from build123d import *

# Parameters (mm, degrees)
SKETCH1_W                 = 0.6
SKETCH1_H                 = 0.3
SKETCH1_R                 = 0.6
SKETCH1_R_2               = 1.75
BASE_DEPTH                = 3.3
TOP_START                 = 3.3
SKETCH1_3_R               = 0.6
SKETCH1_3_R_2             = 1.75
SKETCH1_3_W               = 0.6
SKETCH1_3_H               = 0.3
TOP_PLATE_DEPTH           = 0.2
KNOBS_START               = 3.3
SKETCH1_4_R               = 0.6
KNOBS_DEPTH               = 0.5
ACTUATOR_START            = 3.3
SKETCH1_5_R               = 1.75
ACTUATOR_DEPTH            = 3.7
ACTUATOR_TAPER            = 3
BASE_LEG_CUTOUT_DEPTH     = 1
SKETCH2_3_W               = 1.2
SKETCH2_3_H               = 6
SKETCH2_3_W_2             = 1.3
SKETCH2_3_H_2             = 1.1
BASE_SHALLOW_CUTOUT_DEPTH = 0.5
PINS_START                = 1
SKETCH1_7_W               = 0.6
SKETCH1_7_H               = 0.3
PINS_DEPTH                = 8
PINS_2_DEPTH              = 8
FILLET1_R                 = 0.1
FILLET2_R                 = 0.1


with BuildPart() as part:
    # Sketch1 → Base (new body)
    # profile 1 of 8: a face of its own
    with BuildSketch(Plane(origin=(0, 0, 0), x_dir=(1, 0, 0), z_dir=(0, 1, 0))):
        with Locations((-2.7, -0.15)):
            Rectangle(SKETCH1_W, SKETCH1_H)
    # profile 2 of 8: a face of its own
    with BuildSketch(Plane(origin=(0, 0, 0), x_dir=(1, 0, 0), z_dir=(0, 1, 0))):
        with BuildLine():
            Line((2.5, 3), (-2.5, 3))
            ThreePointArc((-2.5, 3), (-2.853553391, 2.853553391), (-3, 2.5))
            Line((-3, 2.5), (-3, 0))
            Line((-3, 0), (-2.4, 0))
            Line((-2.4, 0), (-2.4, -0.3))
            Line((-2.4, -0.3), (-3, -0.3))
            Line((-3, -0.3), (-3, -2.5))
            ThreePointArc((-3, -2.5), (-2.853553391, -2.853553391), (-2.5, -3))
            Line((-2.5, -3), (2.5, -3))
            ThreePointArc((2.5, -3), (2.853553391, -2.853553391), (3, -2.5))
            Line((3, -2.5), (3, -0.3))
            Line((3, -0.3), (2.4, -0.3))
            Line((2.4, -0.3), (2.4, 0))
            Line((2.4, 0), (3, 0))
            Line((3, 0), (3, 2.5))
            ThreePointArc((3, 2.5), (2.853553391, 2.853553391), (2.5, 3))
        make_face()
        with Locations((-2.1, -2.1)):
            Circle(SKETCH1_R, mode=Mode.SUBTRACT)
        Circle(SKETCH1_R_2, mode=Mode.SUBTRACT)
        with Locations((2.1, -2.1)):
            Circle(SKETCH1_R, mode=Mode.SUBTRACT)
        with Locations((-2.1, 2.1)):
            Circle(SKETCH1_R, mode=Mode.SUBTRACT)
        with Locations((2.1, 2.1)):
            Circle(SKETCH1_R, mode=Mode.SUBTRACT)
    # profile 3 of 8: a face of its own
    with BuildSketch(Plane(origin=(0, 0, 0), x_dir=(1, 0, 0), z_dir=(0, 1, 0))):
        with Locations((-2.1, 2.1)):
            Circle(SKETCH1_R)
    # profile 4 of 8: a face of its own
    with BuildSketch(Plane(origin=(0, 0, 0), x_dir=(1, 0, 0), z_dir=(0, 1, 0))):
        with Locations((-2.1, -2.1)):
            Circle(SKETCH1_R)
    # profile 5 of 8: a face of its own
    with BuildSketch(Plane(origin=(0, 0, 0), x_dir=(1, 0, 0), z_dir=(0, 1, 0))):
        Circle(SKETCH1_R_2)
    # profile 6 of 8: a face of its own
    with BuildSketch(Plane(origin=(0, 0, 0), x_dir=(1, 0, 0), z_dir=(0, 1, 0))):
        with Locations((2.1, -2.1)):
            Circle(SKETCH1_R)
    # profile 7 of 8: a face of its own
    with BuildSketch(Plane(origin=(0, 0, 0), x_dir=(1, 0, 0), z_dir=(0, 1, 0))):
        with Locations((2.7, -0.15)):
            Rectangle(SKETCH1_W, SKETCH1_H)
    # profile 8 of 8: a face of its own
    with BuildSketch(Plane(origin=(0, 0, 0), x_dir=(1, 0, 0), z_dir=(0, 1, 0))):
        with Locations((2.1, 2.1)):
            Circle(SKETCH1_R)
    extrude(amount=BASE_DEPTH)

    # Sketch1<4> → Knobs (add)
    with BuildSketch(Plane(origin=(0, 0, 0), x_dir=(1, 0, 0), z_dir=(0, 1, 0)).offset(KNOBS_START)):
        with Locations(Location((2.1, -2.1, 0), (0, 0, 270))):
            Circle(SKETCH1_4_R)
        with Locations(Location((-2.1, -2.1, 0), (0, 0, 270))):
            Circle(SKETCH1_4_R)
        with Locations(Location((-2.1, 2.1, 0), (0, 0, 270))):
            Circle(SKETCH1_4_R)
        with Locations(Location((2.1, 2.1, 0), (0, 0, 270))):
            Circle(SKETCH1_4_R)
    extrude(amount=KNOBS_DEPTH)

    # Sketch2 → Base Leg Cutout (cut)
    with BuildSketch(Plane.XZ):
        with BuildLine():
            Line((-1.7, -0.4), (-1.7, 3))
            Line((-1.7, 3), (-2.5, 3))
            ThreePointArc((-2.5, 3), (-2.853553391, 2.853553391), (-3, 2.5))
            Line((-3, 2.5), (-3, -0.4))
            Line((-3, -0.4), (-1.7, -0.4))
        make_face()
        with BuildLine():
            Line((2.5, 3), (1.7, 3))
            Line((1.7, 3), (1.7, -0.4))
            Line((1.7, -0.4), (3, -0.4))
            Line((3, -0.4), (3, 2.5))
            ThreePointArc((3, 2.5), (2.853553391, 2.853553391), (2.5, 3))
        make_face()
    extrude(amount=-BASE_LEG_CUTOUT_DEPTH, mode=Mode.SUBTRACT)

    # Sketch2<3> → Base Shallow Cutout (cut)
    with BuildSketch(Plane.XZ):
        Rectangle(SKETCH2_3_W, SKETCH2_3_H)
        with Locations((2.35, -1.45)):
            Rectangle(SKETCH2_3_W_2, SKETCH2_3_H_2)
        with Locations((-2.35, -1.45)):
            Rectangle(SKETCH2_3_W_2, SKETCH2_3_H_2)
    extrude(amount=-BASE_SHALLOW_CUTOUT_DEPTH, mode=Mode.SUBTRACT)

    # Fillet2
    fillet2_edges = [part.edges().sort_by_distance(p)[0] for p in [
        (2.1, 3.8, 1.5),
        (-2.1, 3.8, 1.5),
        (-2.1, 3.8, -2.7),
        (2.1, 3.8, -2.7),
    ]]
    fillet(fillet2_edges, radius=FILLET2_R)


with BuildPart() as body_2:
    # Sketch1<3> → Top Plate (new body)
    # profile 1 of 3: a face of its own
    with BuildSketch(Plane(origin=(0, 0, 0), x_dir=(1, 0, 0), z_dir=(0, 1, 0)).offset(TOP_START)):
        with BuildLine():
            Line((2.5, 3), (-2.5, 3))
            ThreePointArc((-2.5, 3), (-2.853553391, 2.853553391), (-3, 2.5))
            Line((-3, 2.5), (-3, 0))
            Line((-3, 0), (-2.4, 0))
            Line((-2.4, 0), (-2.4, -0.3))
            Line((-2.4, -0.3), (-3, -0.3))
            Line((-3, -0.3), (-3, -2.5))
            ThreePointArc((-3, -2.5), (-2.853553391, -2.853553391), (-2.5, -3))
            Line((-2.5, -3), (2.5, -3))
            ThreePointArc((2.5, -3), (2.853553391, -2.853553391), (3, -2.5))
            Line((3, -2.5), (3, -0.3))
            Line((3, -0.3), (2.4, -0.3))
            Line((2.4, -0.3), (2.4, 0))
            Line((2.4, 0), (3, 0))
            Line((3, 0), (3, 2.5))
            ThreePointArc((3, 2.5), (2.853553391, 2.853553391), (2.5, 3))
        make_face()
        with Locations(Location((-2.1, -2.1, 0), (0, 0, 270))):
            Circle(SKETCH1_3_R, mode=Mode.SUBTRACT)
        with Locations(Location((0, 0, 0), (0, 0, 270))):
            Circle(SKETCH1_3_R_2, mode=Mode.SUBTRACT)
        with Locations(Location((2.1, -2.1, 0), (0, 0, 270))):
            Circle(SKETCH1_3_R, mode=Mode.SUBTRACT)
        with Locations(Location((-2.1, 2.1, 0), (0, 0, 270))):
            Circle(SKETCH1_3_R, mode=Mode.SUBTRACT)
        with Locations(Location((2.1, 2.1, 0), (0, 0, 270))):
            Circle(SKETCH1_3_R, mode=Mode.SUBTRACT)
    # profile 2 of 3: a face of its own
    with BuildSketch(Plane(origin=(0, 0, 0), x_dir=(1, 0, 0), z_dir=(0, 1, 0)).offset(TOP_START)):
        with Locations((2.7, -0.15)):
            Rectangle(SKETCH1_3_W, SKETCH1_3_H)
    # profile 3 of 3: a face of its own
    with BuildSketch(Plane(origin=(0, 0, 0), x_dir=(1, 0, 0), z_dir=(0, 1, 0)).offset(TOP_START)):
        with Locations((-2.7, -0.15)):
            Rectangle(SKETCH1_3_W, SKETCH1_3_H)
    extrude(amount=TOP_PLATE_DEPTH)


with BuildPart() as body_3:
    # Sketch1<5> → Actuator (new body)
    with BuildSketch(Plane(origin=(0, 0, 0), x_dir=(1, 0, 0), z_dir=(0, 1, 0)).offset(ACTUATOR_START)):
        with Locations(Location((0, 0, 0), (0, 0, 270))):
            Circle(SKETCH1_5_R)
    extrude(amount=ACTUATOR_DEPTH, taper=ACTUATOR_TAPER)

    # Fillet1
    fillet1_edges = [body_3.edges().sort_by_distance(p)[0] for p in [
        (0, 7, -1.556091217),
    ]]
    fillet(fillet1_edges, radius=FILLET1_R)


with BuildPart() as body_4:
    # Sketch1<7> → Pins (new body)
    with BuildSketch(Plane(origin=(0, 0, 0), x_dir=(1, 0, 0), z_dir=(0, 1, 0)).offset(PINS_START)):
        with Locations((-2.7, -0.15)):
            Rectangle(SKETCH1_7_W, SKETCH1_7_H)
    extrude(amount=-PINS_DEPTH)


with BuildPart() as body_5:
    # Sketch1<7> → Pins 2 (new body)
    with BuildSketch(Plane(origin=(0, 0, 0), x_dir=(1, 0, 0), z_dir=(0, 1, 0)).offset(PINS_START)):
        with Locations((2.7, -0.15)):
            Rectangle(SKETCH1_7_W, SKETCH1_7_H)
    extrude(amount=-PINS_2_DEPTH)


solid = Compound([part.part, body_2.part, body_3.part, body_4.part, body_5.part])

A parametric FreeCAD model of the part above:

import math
import FreeCAD as App
import Part
import Sketcher

V = App.Vector


def edges_at(feature, points):
    """Names of the edges that pass closest to the given points."""
    edges = feature.Shape.Edges
    near = lambda p: min(range(len(edges)), key=lambda i: edges[i].distToShape(Part.Vertex(*p))[0])
    return sorted({f"Edge{near(p) + 1}" for p in points})


def add_polygon(sketch, points):
    """Adds a closed chain of lines whose ends are joined by coincident constraints."""
    first, n = sketch.GeometryCount, len(points)
    for a, b in zip(points, points[1:] + points[:1]):
        sketch.addGeometry(Part.LineSegment(App.Vector(*a, 0), App.Vector(*b, 0)), False)
    for i in range(n):
        sketch.addConstraint(Sketcher.Constraint("Coincident", first + i, 2, first + (i + 1) % n, 1))

doc = App.newDocument("Part")
body = doc.addObject("PartDesign::Body", "Body")

sketch1 = body.newObject("Sketcher::SketchObject", "Sketch")
sketch1.AttachmentSupport = (doc.getObject("XZ_Plane"), [""])
sketch1.MapMode = "FlatFace"
sketch1.addGeometry([
    Part.ArcOfCircle(Part.Circle(V(-2.5, 2.5, 0), V(0, 0, 1), 0.5), math.radians(90), math.radians(180)),
    Part.LineSegment(V(-2.5, 3, 0), V(2.5, 3, 0)),
    Part.ArcOfCircle(Part.Circle(V(2.5, 2.5, 0), V(0, 0, 1), 0.5), math.radians(0), math.radians(90)),
    Part.LineSegment(V(3, 2.5, 0), V(3, -2.5, 0)),
    Part.ArcOfCircle(Part.Circle(V(2.5, -2.5, 0), V(0, 0, 1), 0.5), math.radians(-90), math.radians(0)),
    Part.LineSegment(V(2.5, -3, 0), V(-2.5, -3, 0)),
    Part.ArcOfCircle(Part.Circle(V(-2.5, -2.5, 0), V(0, 0, 1), 0.5), math.radians(180), math.radians(270)),
    Part.LineSegment(V(-3, -2.5, 0), V(-3, 2.5, 0)),
], False)
sketch1.addConstraint([
    Sketcher.Constraint("Tangent", 0, 1, 1, 1),
    Sketcher.Constraint("Tangent", 1, 2, 2, 2),
    Sketcher.Constraint("Tangent", 2, 1, 3, 1),
    Sketcher.Constraint("Tangent", 3, 2, 4, 2),
    Sketcher.Constraint("Tangent", 4, 1, 5, 1),
    Sketcher.Constraint("Tangent", 5, 2, 6, 2),
    Sketcher.Constraint("Tangent", 6, 1, 7, 1),
    Sketcher.Constraint("Tangent", 7, 2, 0, 2),
    Sketcher.Constraint("Horizontal", 1),
    Sketcher.Constraint("Vertical", 3),
    Sketcher.Constraint("Horizontal", 5),
    Sketcher.Constraint("Vertical", 7),
    Sketcher.Constraint("Equal", 0, 2),
    Sketcher.Constraint("Equal", 2, 4),
    Sketcher.Constraint("Equal", 4, 6),
    Sketcher.Constraint("Symmetric", 0, 3, 4, 3, -1, 1),
    Sketcher.Constraint("Equal", 5, 3),
    Sketcher.Constraint("Radius", 0, 0.5),
    Sketcher.Constraint("DistanceX", 1, 1, 1, 2, 5.0),
])
pad1 = body.newObject("PartDesign::Pad", "Pad")
pad1.Profile = sketch1
pad1.Length = 3.3
pad1.Reversed = True

sketch2 = body.newObject("Sketcher::SketchObject", "Sketch001")
sketch2.AttachmentSupport = (doc.getObject("XZ_Plane"), [""])
sketch2.MapMode = "FlatFace"
sketch2.AttachmentOffset = App.Placement(V(0, 0, -3.3), App.Rotation())
sketch2.addGeometry([
    Part.Circle(V(2.1, 2.1, 0), V(0, 0, 1), 0.6),
    Part.Circle(V(-2.1, 2.1, 0), V(0, 0, 1), 0.6),
    Part.Circle(V(-2.1, -2.1, 0), V(0, 0, 1), 0.6),
    Part.Circle(V(2.1, -2.1, 0), V(0, 0, 1), 0.6),
], False)
sketch2.addConstraint([
    Sketcher.Constraint("Equal", 0, 1),
    Sketcher.Constraint("Equal", 1, 2),
    Sketcher.Constraint("Equal", 2, 3),
    Sketcher.Constraint("Symmetric", 0, 3, 2, 3, -1, 1),
    Sketcher.Constraint("Symmetric", 1, 3, 3, 3, -1, 1),
    Sketcher.Constraint("Symmetric", 0, 3, 1, 3, -2),
    Sketcher.Constraint("Diameter", 0, 1.2),
    Sketcher.Constraint("DistanceX", -1, 1, 0, 3, 2.1),
    Sketcher.Constraint("DistanceY", -1, 1, 0, 3, 2.1),
])
pad2 = body.newObject("PartDesign::Pad", "Pad001")
pad2.Profile = sketch2
pad2.Length = 0.5
pad2.Reversed = True

sketch3 = body.newObject("Sketcher::SketchObject", "Sketch002")
sketch3.AttachmentSupport = (doc.getObject("XZ_Plane"), [""])
sketch3.MapMode = "FlatFace"
sketch3.addGeometry([
    Part.LineSegment(V(-1.7, -0.4, 0), V(-1.7, 3, 0)),
    Part.LineSegment(V(-1.7, 3, 0), V(-2.5, 3, 0)),
    Part.ArcOfCircle(Part.Circle(V(-2.5, 2.5, 0), V(0, 0, 1), 0.5), math.radians(90), math.radians(180)),
    Part.LineSegment(V(-3, 2.5, 0), V(-3, -0.4, 0)),
    Part.LineSegment(V(-3, -0.4, 0), V(-1.7, -0.4, 0)),
    Part.LineSegment(V(2.5, 3, 0), V(1.7, 3, 0)),
    Part.LineSegment(V(1.7, 3, 0), V(1.7, -0.4, 0)),
    Part.LineSegment(V(1.7, -0.4, 0), V(3, -0.4, 0)),
    Part.LineSegment(V(3, -0.4, 0), V(3, 2.5, 0)),
    Part.ArcOfCircle(Part.Circle(V(2.5, 2.5, 0), V(0, 0, 1), 0.5), math.radians(0), math.radians(90)),
], False)
sketch3.addConstraint([
    Sketcher.Constraint("Coincident", 0, 2, 1, 1),
    Sketcher.Constraint("Tangent", 1, 2, 2, 1),
    Sketcher.Constraint("Tangent", 2, 2, 3, 1),
    Sketcher.Constraint("Coincident", 3, 2, 4, 1),
    Sketcher.Constraint("Coincident", 4, 2, 0, 1),
    Sketcher.Constraint("Coincident", 5, 2, 6, 1),
    Sketcher.Constraint("Coincident", 6, 2, 7, 1),
    Sketcher.Constraint("Coincident", 7, 2, 8, 1),
    Sketcher.Constraint("Tangent", 8, 2, 9, 1),
    Sketcher.Constraint("Tangent", 9, 2, 5, 1),
    Sketcher.Constraint("Vertical", 0),
    Sketcher.Constraint("Horizontal", 1),
    Sketcher.Constraint("Vertical", 3),
    Sketcher.Constraint("Horizontal", 4),
    Sketcher.Constraint("Horizontal", 5),
    Sketcher.Constraint("Vertical", 6),
    Sketcher.Constraint("Horizontal", 7),
    Sketcher.Constraint("Vertical", 8),
    Sketcher.Constraint("Equal", 2, 9),
    Sketcher.Constraint("Symmetric", 2, 3, 9, 3, -2),
    Sketcher.Constraint("Symmetric", 4, 2, 6, 2, -2),
    Sketcher.Constraint("Radius", 2, 0.5),
    Sketcher.Constraint("DistanceX", 1, 2, 1, 1, 0.8),
    Sketcher.Constraint("DistanceY", 0, 1, 0, 2, 3.4),
    Sketcher.Constraint("DistanceY", -1, 1, 0, 2, 3.0),
    Sketcher.Constraint("DistanceX", 2, 2, -1, 1, 3.0),
])
pocket1 = body.newObject("PartDesign::Pocket", "Pocket")
pocket1.Profile = sketch3
pocket1.Length = 1

sketch4 = body.newObject("Sketcher::SketchObject", "Sketch003")
sketch4.AttachmentSupport = (doc.getObject("XZ_Plane"), [""])
sketch4.MapMode = "FlatFace"
add_polygon(sketch4, [(-0.6, 3), (-0.6, -3), (0.6, -3), (0.6, 3)])
add_polygon(sketch4, [(1.7, -0.9), (1.7, -2), (3, -2), (3, -0.9)])
add_polygon(sketch4, [(-3, -0.9), (-3, -2), (-1.7, -2), (-1.7, -0.9)])
sketch4.addConstraint([
    Sketcher.Constraint("Vertical", 0),
    Sketcher.Constraint("Horizontal", 1),
    Sketcher.Constraint("Vertical", 2),
    Sketcher.Constraint("Horizontal", 3),
    Sketcher.Constraint("Vertical", 4),
    Sketcher.Constraint("Horizontal", 5),
    Sketcher.Constraint("Vertical", 6),
    Sketcher.Constraint("Horizontal", 7),
    Sketcher.Constraint("Vertical", 8),
    Sketcher.Constraint("Horizontal", 9),
    Sketcher.Constraint("Vertical", 10),
    Sketcher.Constraint("Horizontal", 11),
    Sketcher.Constraint("Symmetric", 0, 2, 2, 2, -1, 1),
    Sketcher.Constraint("Symmetric", 5, 2, 8, 2, -2),
    Sketcher.Constraint("Symmetric", 7, 2, 10, 2, -2),
    Sketcher.Constraint("DistanceY", 0, 2, 0, 1, 6.0),
    Sketcher.Constraint("DistanceX", 1, 1, 1, 2, 1.2),
    Sketcher.Constraint("DistanceX", 5, 1, 5, 2, 1.3),
    Sketcher.Constraint("DistanceY", 4, 2, 4, 1, 1.1),
    Sketcher.Constraint("DistanceY", 4, 2, -1, 1, 2.0),
    Sketcher.Constraint("DistanceX", -1, 1, 5, 2, 3.0),
])
pocket2 = body.newObject("PartDesign::Pocket", "Pocket001")
pocket2.Profile = sketch4
pocket2.Length = 0.5
doc.recompute()

fillet = body.newObject("PartDesign::Fillet", "Fillet")
fillet.Base = (pocket2, edges_at(pocket2, [
    (2.1, 3.8, 1.5),
    (-2.1, 3.8, 1.5),
    (-2.1, 3.8, -2.7),
    (2.1, 3.8, -2.7),
]))
fillet.Radius = 0.1
body2 = doc.addObject("PartDesign::Body", "Body001")

sketch5 = body2.newObject("Sketcher::SketchObject", "Sketch004")
sketch5.AttachmentSupport = (doc.getObject("XZ_Plane001"), [""])
sketch5.MapMode = "FlatFace"
sketch5.AttachmentOffset = App.Placement(V(0, 0, -3.3), App.Rotation())
sketch5.addGeometry([
    Part.LineSegment(V(2.5, -3, 0), V(-2.5, -3, 0)),
    Part.ArcOfCircle(Part.Circle(V(-2.5, -2.5, 0), V(0, 0, 1), 0.5), math.radians(180), math.radians(270)),
    Part.LineSegment(V(-3, -2.5, 0), V(-3, 2.5, 0)),
    Part.ArcOfCircle(Part.Circle(V(-2.5, 2.5, 0), V(0, 0, 1), 0.5), math.radians(90), math.radians(180)),
    Part.LineSegment(V(-2.5, 3, 0), V(2.5, 3, 0)),
    Part.ArcOfCircle(Part.Circle(V(2.5, 2.5, 0), V(0, 0, 1), 0.5), math.radians(0), math.radians(90)),
    Part.LineSegment(V(3, 2.5, 0), V(3, -2.5, 0)),
    Part.ArcOfCircle(Part.Circle(V(2.5, -2.5, 0), V(0, 0, 1), 0.5), math.radians(-90), math.radians(0)),
    Part.Circle(V(-2.1, 2.1, 0), V(0, 0, 1), 0.6),
    Part.Circle(V(2.1, 2.1, 0), V(0, 0, 1), 0.6),
    Part.Circle(V(-2.1, -2.1, 0), V(0, 0, 1), 0.6),
    Part.Circle(V(0, 0, 0), V(0, 0, 1), 1.75),
    Part.Circle(V(2.1, -2.1, 0), V(0, 0, 1), 0.6),
], False)
sketch5.addConstraint([
    Sketcher.Constraint("Tangent", 0, 2, 1, 2),
    Sketcher.Constraint("Tangent", 1, 1, 2, 1),
    Sketcher.Constraint("Tangent", 2, 2, 3, 2),
    Sketcher.Constraint("Tangent", 3, 1, 4, 1),
    Sketcher.Constraint("Tangent", 4, 2, 5, 2),
    Sketcher.Constraint("Tangent", 5, 1, 6, 1),
    Sketcher.Constraint("Tangent", 6, 2, 7, 2),
    Sketcher.Constraint("Tangent", 7, 1, 0, 1),
    Sketcher.Constraint("Horizontal", 0),
    Sketcher.Constraint("Vertical", 2),
    Sketcher.Constraint("Horizontal", 4),
    Sketcher.Constraint("Vertical", 6),
    Sketcher.Constraint("Coincident", 11, 3, -1, 1),
    Sketcher.Constraint("Equal", 1, 3),
    Sketcher.Constraint("Equal", 3, 5),
    Sketcher.Constraint("Equal", 5, 7),
    Sketcher.Constraint("Equal", 8, 9),
    Sketcher.Constraint("Equal", 9, 10),
    Sketcher.Constraint("Equal", 10, 12),
    Sketcher.Constraint("Symmetric", 1, 3, 5, 3, -1, 1),
    Sketcher.Constraint("Symmetric", 9, 3, 10, 3, -1, 1),
    Sketcher.Constraint("Symmetric", 8, 3, 12, 3, -1, 1),
    Sketcher.Constraint("Symmetric", 8, 3, 9, 3, -2),
    Sketcher.Constraint("Equal", 4, 2),
    Sketcher.Constraint("Diameter", 8, 1.2),
    Sketcher.Constraint("Diameter", 11, 3.5),
    Sketcher.Constraint("Radius", 1, 0.5),
    Sketcher.Constraint("DistanceX", 0, 2, 0, 1, 5.0),
    Sketcher.Constraint("DistanceX", 8, 3, -1, 1, 2.1),
    Sketcher.Constraint("DistanceY", -1, 1, 8, 3, 2.1),
])
pad3 = body2.newObject("PartDesign::Pad", "Pad002")
pad3.Profile = sketch5
pad3.Length = 0.2
pad3.Reversed = True
body3 = doc.addObject("PartDesign::Body", "Body002")

sketch6 = body3.newObject("Sketcher::SketchObject", "Sketch005")
sketch6.AttachmentSupport = (doc.getObject("XZ_Plane002"), [""])
sketch6.MapMode = "FlatFace"
sketch6.AttachmentOffset = App.Placement(V(0, 0, -3.3), App.Rotation())
sketch6.addGeometry(Part.Circle(V(0, 0, 0), V(0, 0, 1), 1.8), False)
sketch6.addConstraint([
    Sketcher.Constraint("Coincident", 0, 3, -1, 1),
    Sketcher.Constraint("Diameter", 0, 3.5),
])
pad4 = body3.newObject("PartDesign::Pad", "Pad003")
pad4.Profile = sketch6
pad4.Length = 3.7
pad4.Reversed = True
pad4.TaperAngle = -3
doc.recompute()

fillet2 = body3.newObject("PartDesign::Fillet", "Fillet001")
fillet2.Base = (pad4, edges_at(pad4, [(0, 7, -1.556)]))
fillet2.Radius = 0.1
body4 = doc.addObject("PartDesign::Body", "Body003")

sketch7 = body4.newObject("Sketcher::SketchObject", "Sketch006")
sketch7.AttachmentSupport = (doc.getObject("XZ_Plane003"), [""])
sketch7.MapMode = "FlatFace"
sketch7.AttachmentOffset = App.Placement(V(0, 0, -1), App.Rotation())
add_polygon(sketch7, [(-3, 0), (-3, 0.3), (-2.4, 0.3), (-2.4, 0)])
sketch7.addConstraint([
    Sketcher.Constraint("Vertical", 0),
    Sketcher.Constraint("Horizontal", 1),
    Sketcher.Constraint("Vertical", 2),
    Sketcher.Constraint("Horizontal", 3),
    Sketcher.Constraint("PointOnObject", 2, 2, -1),
    Sketcher.Constraint("DistanceX", 1, 1, 1, 2, 0.6),
    Sketcher.Constraint("DistanceY", 0, 1, 0, 2, 0.3),
    Sketcher.Constraint("DistanceX", 0, 2, -1, 1, 3.0),
])
pad5 = body4.newObject("PartDesign::Pad", "Pad004")
pad5.Profile = sketch7
pad5.Length = 8
body5 = doc.addObject("PartDesign::Body", "Body004")

sketch8 = body5.newObject("Sketcher::SketchObject", "Sketch007")
sketch8.AttachmentSupport = (doc.getObject("XZ_Plane004"), [""])
sketch8.MapMode = "FlatFace"
sketch8.AttachmentOffset = App.Placement(V(0, 0, -1), App.Rotation())
add_polygon(sketch8, [(2.4, 0), (2.4, 0.3), (3, 0.3), (3, 0)])
sketch8.addConstraint([
    Sketcher.Constraint("Vertical", 0),
    Sketcher.Constraint("Horizontal", 1),
    Sketcher.Constraint("Vertical", 2),
    Sketcher.Constraint("Horizontal", 3),
    Sketcher.Constraint("PointOnObject", 2, 2, -1),
    Sketcher.Constraint("DistanceX", 1, 1, 1, 2, 0.6),
    Sketcher.Constraint("DistanceY", 0, 1, 0, 2, 0.3),
    Sketcher.Constraint("DistanceX", -1, 1, 1, 2, 3.0),
])
pad6 = body5.newObject("PartDesign::Pad", "Pad005")
pad6.Profile = sketch8
pad6.Length = 8

doc.recompute()
